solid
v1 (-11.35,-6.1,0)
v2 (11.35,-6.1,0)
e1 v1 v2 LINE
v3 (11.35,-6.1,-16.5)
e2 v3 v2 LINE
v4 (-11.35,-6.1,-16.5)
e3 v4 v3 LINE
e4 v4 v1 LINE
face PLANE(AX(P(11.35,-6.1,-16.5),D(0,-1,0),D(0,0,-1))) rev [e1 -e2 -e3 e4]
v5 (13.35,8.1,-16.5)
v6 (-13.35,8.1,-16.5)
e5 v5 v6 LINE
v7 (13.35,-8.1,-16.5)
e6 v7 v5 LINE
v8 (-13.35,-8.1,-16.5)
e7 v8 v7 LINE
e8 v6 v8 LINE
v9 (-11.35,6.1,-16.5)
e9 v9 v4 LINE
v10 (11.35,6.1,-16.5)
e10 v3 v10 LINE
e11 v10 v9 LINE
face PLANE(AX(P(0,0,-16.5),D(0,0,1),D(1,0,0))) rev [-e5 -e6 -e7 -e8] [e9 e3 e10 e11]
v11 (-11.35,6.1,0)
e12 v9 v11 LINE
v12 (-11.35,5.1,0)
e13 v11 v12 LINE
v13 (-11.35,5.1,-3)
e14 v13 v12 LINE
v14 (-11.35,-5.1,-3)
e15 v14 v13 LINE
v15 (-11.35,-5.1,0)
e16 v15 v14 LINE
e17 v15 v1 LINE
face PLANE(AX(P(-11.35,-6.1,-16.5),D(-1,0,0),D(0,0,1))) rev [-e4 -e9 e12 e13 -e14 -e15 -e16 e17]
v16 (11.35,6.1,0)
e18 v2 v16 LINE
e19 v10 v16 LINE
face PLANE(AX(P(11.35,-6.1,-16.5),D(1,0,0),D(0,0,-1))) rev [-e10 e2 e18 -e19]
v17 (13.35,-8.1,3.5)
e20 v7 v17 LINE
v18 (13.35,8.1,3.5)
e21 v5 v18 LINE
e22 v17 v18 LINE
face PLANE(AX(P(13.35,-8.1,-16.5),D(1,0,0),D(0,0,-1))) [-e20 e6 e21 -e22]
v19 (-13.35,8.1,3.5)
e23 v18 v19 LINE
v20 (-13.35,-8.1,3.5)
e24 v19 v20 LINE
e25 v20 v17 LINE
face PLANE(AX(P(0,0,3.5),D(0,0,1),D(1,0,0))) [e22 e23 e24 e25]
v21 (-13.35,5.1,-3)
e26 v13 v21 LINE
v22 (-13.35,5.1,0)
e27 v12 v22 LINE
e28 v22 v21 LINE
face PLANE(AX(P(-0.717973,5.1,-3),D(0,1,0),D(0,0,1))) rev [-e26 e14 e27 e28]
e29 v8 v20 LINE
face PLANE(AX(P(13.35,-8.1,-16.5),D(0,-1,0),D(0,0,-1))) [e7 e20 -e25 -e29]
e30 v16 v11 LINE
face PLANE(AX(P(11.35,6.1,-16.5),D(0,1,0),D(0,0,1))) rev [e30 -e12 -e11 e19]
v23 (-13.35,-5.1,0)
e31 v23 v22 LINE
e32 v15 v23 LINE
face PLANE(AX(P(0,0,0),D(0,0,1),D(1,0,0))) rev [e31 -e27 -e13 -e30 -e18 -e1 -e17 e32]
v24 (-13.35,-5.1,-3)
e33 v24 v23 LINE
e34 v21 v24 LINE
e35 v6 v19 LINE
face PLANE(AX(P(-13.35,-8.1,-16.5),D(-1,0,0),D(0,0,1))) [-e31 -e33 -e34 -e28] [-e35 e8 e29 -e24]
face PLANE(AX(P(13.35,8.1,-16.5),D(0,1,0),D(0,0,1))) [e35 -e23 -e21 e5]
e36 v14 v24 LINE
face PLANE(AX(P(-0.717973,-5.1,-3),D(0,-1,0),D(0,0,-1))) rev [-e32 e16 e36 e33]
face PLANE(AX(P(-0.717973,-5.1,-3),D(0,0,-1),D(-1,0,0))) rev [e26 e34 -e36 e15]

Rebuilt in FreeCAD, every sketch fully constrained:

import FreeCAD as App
import Part
import Sketcher

doc = App.newDocument("Part")
body = doc.addObject("PartDesign::Body", "Body")

# Sketch on XY plane
sketch1 = body.newObject("Sketcher::SketchObject", "Sketch")
sketch1.AttachmentSupport = (doc.getObject("XY_Plane"), [""])
sketch1.MapMode = "FlatFace"
sketch1.addGeometry([
    Part.LineSegment(App.Vector(-11, 6, 0), App.Vector(-11, -6, 0)),
    Part.LineSegment(App.Vector(-11, -6, 0), App.Vector(11, -6, 0)),
    Part.LineSegment(App.Vector(11, -6, 0), App.Vector(11, 6, 0)),
    Part.LineSegment(App.Vector(11, 6, 0), App.Vector(-11, 6, 0)),
], False)
sketch1.addConstraint([
    Sketcher.Constraint("Coincident", 0, 2, 1, 1),
    Sketcher.Constraint("Coincident", 1, 2, 2, 1),
    Sketcher.Constraint("Coincident", 2, 2, 3, 1),
    Sketcher.Constraint("Coincident", 3, 2, 0, 1),
    Sketcher.Constraint("Vertical", 0),
    Sketcher.Constraint("Horizontal", 1),
    Sketcher.Constraint("Vertical", 2),
    Sketcher.Constraint("Horizontal", 3),
    Sketcher.Constraint("Symmetric", 0, 2, 2, 2, -1, 1),
    Sketcher.Constraint("DistanceX", 1, 1, 1, 2, 22.7),
    Sketcher.Constraint("DistanceY", 0, 2, 0, 1, 12.2),
])
pad1 = body.newObject("PartDesign::Pad", "Pad")
pad1.Profile = sketch1
pad1.Length = 3.5

# Sketch on XY plane
sketch2 = body.newObject("Sketcher::SketchObject", "Sketch001")
sketch2.AttachmentSupport = (doc.getObject("XY_Plane"), [""])
sketch2.MapMode = "FlatFace"
sketch2.AttachmentOffset = App.Placement(App.Vector(0, 0, 3.5), App.Rotation())
sketch2.addGeometry([
    Part.LineSegment(App.Vector(-13, 8, 0), App.Vector(-13, -8, 0)),  # 0
    Part.LineSegment(App.Vector(-13, -8, 0), App.Vector(13, -8, 0)),  # 1
    Part.LineSegment(App.Vector(13, -8, 0), App.Vector(13, 8, 0)),  # 2
    Part.LineSegment(App.Vector(13, 8, 0), App.Vector(-13, 8, 0)),  # 3
    Part.LineSegment(App.Vector(11, -6, 0), App.Vector(-11, -6, 0)),  # 4
    Part.LineSegment(App.Vector(-11, -6, 0), App.Vector(-11, 6, 0)),  # 5
    Part.LineSegment(App.Vector(-11, 6, 0), App.Vector(11, 6, 0)),  # 6
    Part.LineSegment(App.Vector(11, 6, 0), App.Vector(11, -6, 0)),  # 7
], False)
sketch2.addConstraint([
    Sketcher.Constraint("Coincident", 0, 2, 1, 1),
    Sketcher.Constraint("Coincident", 1, 2, 2, 1),
    Sketcher.Constraint("Coincident", 2, 2, 3, 1),
    Sketcher.Constraint("Coincident", 3, 2, 0, 1),
    Sketcher.Constraint("Coincident", 4, 2, 5, 1),
    Sketcher.Constraint("Coincident", 5, 2, 6, 1),
    Sketcher.Constraint("Coincident", 6, 2, 7, 1),
    Sketcher.Constraint("Coincident", 7, 2, 4, 1),
    Sketcher.Constraint("Vertical", 0),
    Sketcher.Constraint("Horizontal", 1),
    Sketcher.Constraint("Vertical", 2),
    Sketcher.Constraint("Horizontal", 3),
    Sketcher.Constraint("Horizontal", 4),
    Sketcher.Constraint("Vertical", 5),
    Sketcher.Constraint("Horizontal", 6),
    Sketcher.Constraint("Vertical", 7),
    Sketcher.Constraint("Symmetric", 0, 2, 2, 2, -1, 1),
    Sketcher.Constraint("Symmetric", 4, 2, 6, 2, -1, 1),
    Sketcher.Constraint("DistanceX", 1, 1, 1, 2, 26.7),
    Sketcher.Constraint("DistanceX", 4, 2, 4, 1, 22.7),
    Sketcher.Constraint("DistanceY", 0, 2, 0, 1, 16.2),
    Sketcher.Constraint("DistanceY", 5, 1, 5, 2, 12.2),
])
pad2 = body.newObject("PartDesign::Pad", "Pad001")
pad2.Profile = sketch2
pad2.Length = 20
pad2.Reversed = True

# Sketch on YZ plane
sketch3 = body.newObject("Sketcher::SketchObject", "Sketch002")
sketch3.AttachmentSupport = (doc.getObject("YZ_Plane"), [""])
sketch3.MapMode = "FlatFace"
sketch3.AttachmentOffset = App.Placement(App.Vector(0, 0, -13.35), App.Rotation())
sketch3.addGeometry([
    Part.LineSegment(App.Vector(5.1, -3, 0), App.Vector(-5.1, -3, 0)),
    Part.LineSegment(App.Vector(-5.1, -3, 0), App.Vector(-5.1, 0, 0)),
    Part.LineSegment(App.Vector(-5.1, 0, 0), App.Vector(5.1, 0, 0)),
    Part.LineSegment(App.Vector(5.1, 0, 0), App.Vector(5.1, -3, 0)),
], False)
sketch3.addConstraint([
    Sketcher.Constraint("Coincident", 0, 2, 1, 1),
    Sketcher.Constraint("Coincident", 1, 2, 2, 1),
    Sketcher.Constraint("Coincident", 2, 2, 3, 1),
    Sketcher.Constraint("Coincident", 3, 2, 0, 1),
    Sketcher.Constraint("Horizontal", 0),
    Sketcher.Constraint("Vertical", 1),
    Sketcher.Constraint("Horizontal", 2),
    Sketcher.Constraint("Vertical", 3),
    Sketcher.Constraint("Symmetric", 1, 2, 2, 2, -1, 1),
    Sketcher.Constraint("DistanceY", 1, 1, 1, 2, 3.0),
    Sketcher.Constraint("DistanceX", 0, 2, 0, 1, 10.2),
])
pocket1 = body.newObject("PartDesign::Pocket", "Pocket")
pocket1.Profile = sketch3
pocket1.Length = 2
pocket1.Reversed = True

doc.recompute()
